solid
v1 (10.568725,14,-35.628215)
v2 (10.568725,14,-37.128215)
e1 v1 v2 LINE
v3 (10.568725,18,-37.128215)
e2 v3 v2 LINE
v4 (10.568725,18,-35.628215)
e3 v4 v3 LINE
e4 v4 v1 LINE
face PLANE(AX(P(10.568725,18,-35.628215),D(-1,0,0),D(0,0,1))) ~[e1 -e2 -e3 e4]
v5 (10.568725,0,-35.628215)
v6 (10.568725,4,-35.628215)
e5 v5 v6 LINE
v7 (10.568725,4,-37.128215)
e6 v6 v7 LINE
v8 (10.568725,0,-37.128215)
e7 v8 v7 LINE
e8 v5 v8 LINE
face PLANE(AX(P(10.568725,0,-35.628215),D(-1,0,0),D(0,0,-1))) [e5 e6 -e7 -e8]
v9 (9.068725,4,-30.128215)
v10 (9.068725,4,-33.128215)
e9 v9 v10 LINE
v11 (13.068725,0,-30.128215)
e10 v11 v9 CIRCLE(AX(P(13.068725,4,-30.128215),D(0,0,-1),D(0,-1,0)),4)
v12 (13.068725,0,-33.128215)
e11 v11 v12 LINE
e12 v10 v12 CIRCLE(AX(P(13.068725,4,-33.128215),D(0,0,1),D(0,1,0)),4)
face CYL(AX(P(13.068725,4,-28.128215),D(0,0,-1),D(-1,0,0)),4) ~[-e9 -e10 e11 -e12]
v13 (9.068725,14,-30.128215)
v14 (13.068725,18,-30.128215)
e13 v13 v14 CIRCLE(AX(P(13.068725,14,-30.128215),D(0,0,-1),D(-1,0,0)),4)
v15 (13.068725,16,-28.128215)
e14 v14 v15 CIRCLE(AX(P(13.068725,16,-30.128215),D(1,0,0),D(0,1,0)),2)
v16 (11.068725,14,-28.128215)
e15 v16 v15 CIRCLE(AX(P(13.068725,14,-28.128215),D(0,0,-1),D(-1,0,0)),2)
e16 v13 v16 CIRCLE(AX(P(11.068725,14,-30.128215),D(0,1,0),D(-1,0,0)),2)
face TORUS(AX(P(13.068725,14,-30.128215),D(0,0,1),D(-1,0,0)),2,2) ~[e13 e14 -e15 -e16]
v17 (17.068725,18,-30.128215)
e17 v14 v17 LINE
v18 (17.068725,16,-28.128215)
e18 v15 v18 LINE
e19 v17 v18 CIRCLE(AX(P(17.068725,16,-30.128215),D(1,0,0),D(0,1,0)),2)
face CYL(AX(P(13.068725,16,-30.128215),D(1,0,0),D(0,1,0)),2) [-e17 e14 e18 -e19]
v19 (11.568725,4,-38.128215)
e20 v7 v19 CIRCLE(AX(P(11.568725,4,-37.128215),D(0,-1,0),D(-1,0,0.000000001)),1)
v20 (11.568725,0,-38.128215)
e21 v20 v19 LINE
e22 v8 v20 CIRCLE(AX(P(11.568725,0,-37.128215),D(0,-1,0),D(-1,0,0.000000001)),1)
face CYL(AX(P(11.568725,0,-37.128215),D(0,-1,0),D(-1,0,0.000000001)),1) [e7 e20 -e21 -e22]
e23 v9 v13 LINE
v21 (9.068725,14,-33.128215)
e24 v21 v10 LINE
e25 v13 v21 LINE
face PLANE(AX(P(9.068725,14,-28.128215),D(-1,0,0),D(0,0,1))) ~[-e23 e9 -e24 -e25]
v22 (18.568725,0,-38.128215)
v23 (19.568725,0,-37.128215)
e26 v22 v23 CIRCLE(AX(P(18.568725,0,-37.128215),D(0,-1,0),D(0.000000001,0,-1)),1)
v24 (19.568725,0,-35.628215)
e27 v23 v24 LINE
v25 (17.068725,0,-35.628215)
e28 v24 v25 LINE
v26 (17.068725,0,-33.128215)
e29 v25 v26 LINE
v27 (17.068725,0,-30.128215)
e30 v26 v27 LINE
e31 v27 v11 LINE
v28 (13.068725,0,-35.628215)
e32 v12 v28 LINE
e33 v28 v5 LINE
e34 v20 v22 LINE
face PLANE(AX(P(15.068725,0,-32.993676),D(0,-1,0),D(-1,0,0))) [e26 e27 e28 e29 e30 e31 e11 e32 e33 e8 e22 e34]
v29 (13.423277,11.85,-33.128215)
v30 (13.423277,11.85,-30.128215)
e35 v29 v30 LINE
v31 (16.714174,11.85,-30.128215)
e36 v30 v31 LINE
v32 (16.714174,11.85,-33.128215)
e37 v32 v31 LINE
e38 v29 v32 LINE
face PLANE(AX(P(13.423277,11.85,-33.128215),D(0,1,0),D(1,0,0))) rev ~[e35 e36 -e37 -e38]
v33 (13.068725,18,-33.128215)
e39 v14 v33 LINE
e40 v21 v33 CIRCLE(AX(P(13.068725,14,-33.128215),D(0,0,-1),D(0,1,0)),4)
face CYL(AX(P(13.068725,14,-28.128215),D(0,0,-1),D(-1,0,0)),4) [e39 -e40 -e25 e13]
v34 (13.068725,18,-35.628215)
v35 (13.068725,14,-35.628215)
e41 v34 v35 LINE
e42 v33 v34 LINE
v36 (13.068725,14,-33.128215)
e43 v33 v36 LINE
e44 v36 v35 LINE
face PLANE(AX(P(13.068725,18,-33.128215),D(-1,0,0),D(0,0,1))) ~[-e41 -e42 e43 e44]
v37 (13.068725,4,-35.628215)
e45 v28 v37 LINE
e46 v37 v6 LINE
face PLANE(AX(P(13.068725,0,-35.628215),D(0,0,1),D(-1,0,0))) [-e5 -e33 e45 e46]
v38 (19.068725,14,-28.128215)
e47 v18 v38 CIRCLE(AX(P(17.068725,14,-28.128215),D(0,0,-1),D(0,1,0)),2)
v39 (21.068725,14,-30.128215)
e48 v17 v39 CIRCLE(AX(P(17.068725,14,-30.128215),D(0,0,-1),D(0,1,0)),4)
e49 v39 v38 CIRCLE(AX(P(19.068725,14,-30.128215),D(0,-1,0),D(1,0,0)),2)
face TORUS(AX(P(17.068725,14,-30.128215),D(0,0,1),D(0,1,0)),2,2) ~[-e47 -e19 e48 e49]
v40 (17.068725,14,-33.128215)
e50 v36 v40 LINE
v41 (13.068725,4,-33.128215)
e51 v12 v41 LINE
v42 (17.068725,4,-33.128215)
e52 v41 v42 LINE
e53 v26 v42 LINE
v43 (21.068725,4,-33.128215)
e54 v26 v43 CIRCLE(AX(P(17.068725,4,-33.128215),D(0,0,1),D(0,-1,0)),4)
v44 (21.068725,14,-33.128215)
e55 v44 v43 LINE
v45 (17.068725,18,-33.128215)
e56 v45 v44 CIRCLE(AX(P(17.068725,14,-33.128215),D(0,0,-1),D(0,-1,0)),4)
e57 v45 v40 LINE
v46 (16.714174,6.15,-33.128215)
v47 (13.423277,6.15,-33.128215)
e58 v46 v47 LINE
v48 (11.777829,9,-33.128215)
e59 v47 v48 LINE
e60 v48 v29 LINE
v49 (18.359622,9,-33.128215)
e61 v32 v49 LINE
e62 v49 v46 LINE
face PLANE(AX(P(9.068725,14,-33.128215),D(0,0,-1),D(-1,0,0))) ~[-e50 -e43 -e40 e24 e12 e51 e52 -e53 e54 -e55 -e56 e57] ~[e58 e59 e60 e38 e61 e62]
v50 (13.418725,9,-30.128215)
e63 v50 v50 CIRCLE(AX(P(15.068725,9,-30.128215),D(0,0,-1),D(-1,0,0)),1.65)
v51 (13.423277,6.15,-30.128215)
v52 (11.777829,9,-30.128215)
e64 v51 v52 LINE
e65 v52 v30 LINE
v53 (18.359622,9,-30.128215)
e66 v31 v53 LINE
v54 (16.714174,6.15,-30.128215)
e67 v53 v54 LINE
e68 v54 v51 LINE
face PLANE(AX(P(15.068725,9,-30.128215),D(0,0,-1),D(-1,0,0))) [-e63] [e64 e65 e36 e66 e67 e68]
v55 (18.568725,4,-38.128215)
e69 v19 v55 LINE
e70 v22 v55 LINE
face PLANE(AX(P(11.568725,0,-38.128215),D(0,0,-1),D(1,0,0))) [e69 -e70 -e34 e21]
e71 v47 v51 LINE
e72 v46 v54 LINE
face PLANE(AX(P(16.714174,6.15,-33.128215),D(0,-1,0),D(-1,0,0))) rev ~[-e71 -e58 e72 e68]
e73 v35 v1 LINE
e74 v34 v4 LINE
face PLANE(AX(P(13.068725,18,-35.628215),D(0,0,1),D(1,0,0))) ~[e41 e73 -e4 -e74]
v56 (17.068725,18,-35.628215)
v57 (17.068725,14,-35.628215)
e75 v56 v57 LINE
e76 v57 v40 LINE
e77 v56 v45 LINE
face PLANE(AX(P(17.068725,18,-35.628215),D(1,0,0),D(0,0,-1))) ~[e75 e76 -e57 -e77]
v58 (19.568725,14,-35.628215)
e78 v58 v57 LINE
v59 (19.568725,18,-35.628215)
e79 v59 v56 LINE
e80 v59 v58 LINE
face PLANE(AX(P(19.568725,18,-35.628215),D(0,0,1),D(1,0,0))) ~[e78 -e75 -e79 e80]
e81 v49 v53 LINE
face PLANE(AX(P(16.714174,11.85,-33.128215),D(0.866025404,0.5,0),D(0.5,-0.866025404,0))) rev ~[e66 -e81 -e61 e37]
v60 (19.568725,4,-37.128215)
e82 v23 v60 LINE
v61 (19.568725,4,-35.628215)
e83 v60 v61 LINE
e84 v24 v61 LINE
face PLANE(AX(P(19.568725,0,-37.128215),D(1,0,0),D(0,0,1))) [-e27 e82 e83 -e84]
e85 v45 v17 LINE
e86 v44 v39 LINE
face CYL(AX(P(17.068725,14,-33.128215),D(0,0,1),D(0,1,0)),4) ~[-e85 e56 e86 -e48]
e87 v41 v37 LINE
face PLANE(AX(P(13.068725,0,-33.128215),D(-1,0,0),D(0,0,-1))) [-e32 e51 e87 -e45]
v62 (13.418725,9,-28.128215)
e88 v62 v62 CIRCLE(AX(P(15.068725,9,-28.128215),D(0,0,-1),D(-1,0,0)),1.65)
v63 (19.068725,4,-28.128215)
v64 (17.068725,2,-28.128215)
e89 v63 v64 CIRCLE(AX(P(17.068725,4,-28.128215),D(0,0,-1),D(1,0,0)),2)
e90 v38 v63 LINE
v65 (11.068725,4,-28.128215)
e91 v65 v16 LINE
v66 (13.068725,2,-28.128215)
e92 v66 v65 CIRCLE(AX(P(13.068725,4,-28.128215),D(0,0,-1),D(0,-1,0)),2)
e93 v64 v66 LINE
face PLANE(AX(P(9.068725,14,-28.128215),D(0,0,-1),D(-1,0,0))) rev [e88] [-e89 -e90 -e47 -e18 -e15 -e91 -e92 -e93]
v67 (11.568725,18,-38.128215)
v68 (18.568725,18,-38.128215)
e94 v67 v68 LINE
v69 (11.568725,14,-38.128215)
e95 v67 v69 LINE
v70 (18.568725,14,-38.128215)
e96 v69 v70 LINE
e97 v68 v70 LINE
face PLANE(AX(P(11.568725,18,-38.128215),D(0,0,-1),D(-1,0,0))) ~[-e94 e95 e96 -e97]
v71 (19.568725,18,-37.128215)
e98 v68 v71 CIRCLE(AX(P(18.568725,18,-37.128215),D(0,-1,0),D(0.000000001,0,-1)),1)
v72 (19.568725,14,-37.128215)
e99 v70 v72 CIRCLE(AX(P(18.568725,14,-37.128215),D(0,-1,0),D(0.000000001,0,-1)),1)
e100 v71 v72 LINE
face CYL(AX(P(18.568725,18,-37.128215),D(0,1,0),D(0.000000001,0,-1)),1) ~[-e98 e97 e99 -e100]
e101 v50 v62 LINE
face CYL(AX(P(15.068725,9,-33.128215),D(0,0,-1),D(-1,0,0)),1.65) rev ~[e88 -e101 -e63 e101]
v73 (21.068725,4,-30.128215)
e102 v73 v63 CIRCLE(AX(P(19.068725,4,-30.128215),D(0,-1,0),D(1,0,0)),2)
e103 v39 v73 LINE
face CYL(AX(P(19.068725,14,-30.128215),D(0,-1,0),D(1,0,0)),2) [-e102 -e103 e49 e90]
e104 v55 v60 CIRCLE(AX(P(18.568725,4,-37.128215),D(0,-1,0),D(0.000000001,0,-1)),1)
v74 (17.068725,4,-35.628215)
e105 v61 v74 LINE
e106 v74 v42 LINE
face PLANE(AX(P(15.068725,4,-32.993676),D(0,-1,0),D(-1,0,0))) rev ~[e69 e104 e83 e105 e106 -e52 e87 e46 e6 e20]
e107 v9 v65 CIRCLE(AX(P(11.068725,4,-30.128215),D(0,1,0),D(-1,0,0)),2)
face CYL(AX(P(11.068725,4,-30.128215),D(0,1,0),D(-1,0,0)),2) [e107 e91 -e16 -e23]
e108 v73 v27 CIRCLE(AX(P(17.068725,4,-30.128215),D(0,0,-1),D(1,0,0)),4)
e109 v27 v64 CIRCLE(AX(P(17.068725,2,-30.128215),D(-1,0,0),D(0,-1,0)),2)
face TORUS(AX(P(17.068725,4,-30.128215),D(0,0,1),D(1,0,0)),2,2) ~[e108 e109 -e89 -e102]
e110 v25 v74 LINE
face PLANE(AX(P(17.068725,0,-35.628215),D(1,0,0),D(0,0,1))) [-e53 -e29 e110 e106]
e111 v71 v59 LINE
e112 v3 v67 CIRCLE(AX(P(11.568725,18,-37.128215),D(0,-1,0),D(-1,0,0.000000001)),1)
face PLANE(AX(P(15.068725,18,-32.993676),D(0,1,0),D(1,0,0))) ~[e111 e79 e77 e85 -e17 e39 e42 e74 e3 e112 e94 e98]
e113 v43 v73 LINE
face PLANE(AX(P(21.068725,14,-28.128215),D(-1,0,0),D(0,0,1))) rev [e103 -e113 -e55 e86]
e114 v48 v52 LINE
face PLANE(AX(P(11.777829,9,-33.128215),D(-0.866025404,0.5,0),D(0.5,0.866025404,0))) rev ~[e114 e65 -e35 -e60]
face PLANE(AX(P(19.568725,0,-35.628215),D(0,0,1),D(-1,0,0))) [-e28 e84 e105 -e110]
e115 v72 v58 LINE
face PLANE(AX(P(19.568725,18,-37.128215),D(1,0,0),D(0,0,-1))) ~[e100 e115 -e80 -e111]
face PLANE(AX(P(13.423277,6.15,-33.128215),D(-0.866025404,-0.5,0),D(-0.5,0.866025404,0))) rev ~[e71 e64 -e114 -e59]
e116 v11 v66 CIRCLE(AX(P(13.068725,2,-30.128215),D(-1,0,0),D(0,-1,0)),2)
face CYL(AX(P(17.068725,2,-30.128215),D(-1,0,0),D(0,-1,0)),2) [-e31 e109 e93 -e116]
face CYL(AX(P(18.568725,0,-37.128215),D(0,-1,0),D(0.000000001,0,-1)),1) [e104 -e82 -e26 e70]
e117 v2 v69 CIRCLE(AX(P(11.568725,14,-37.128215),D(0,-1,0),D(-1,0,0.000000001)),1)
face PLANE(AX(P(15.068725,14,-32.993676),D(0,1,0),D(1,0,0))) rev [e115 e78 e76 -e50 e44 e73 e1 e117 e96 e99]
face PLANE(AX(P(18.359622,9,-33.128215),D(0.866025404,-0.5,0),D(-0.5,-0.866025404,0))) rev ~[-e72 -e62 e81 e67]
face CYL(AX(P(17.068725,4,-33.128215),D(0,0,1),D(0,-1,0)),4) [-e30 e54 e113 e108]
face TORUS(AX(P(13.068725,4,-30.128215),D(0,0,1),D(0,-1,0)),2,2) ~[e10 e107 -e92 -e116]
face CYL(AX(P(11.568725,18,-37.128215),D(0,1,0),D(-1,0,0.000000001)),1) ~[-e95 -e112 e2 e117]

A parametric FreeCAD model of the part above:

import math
import FreeCAD as App
import Part
import Sketcher
Q = App.Units.Quantity


def edges_at(feature, points):
    """Names of the edges that pass closest to the given points."""
    edges = feature.Shape.Edges
    near = lambda p: min(range(len(edges)), key=lambda i: edges[i].distToShape(Part.Vertex(*p))[0])
    return sorted({f"Edge{near(p) + 1}" for p in points})

doc = App.newDocument("Part")
body = doc.addObject("PartDesign::Body", "Body")

# Sketch on XZ plane
sketch1 = body.newObject("Sketcher::SketchObject", "Sketch")
sketch1.AttachmentSupport = (doc.getObject("XZ_Plane"), [""])
sketch1.MapMode = "FlatFace"
sketch1.addGeometry([
    Part.LineSegment(App.Vector(18.568725, -38.128215, 0), App.Vector(11.568725, -38.128215, 0)),  # 0
    Part.ArcOfCircle(Part.Circle(App.Vector(11.568725, -37.128215, 0), App.Vector(0, 0, 1), 1), math.radians(180), math.radians(270)),  # 1
    Part.LineSegment(App.Vector(10.568725, -37.128215, 0), App.Vector(10.568725, -35.628215, 0)),  # 2
    Part.LineSegment(App.Vector(10.568725, -35.628215, 0), App.Vector(13.068725, -35.628215, 0)),  # 3
    Part.LineSegment(App.Vector(13.068725, -35.628215, 0), App.Vector(13.068725, -33.128215, 0)),  # 4
    Part.LineSegment(App.Vector(13.068725, -33.128215, 0), App.Vector(9.068725, -33.128215, 0)),  # 5
    Part.LineSegment(App.Vector(9.068725, -33.128215, 0), App.Vector(9.068725, -28.128215, 0)),  # 6
    Part.LineSegment(App.Vector(9.068725, -28.128215, 0), App.Vector(21.068725, -28.128215, 0)),  # 7
    Part.LineSegment(App.Vector(21.068725, -28.128215, 0), App.Vector(21.068725, -33.128215, 0)),  # 8
    Part.LineSegment(App.Vector(21.068725, -33.128215, 0), App.Vector(17.068725, -33.128215, 0)),  # 9
    Part.LineSegment(App.Vector(17.068725, -33.128215, 0), App.Vector(17.068725, -35.628215, 0)),  # 10
    Part.LineSegment(App.Vector(17.068725, -35.628215, 0), App.Vector(19.568725, -35.628215, 0)),  # 11
    Part.LineSegment(App.Vector(19.568725, -35.628215, 0), App.Vector(19.568725, -37.128215, 0)),  # 12
    Part.ArcOfCircle(Part.Circle(App.Vector(18.568725, -37.128215, 0), App.Vector(0, 0, 1), 1), math.radians(-90), math.radians(0)),  # 13
], False)
sketch1.addConstraint([
    Sketcher.Constraint("Tangent", 0, 2, 1, 2),
    Sketcher.Constraint("Tangent", 1, 1, 2, 1),
    Sketcher.Constraint("Coincident", 2, 2, 3, 1),
    Sketcher.Constraint("Coincident", 3, 2, 4, 1),
    Sketcher.Constraint("Coincident", 4, 2, 5, 1),
    Sketcher.Constraint("Coincident", 5, 2, 6, 1),
    Sketcher.Constraint("Coincident", 6, 2, 7, 1),
    Sketcher.Constraint("Coincident", 7, 2, 8, 1),
    Sketcher.Constraint("Coincident", 8, 2, 9, 1),
    Sketcher.Constraint("Coincident", 9, 2, 10, 1),
    Sketcher.Constraint("Coincident", 10, 2, 11, 1),
    Sketcher.Constraint("Coincident", 11, 2, 12, 1),
    Sketcher.Constraint("Tangent", 12, 2, 13, 2),
    Sketcher.Constraint("Tangent", 13, 1, 0, 1),
    Sketcher.Constraint("Horizontal", 0),
    Sketcher.Constraint("Vertical", 2),
    Sketcher.Constraint("Horizontal", 3),
    Sketcher.Constraint("Vertical", 4),
    Sketcher.Constraint("Horizontal", 5),
    Sketcher.Constraint("Vertical", 6),
    Sketcher.Constraint("Horizontal", 7),
    Sketcher.Constraint("Vertical", 8),
    Sketcher.Constraint("Horizontal", 9),
    Sketcher.Constraint("Vertical", 10),
    Sketcher.Constraint("Horizontal", 11),
    Sketcher.Constraint("Vertical", 12),
    Sketcher.Constraint("Equal", 1, 13),
    Sketcher.Constraint("Horizontal", 5, 2, 8, 2),
    Sketcher.Constraint("Horizontal", 3, 2, 10, 2),
    Sketcher.Constraint("Equal", 5, 9),
    Sketcher.Constraint("Equal", 3, 11),
    Sketcher.Constraint("Equal", 11, 4),
    Sketcher.Constraint("Radius", 1, 1.0),
    Sketcher.Constraint("DistanceX", 0, 2, 0, 1, 7.0),
    Sketcher.Constraint("DistanceX", 5, 2, 5, 1, 4.0),
    Sketcher.Constraint("DistanceX", 7, 1, 7, 2, 12.0),
    Sketcher.Constraint("DistanceY", 6, 1, 6, 2, 5.0),
    Sketcher.Constraint("DistanceY", 2, 1, 2, 2, 1.5),
    Sketcher.Constraint("DistanceX", -1, 1, 1, 3, 11.568725),
    Sketcher.Constraint("DistanceY", 1, 3, -1, 1, 37.128215),
])
pad1 = body.newObject("PartDesign::Pad", "Pad")
pad1.Profile = sketch1
pad1.Length = 4
pad1.Reversed = True

# Sketch on XZ plane
sketch2 = body.newObject("Sketcher::SketchObject", "Sketch001")
sketch2.AttachmentSupport = (doc.getObject("XZ_Plane"), [""])
sketch2.MapMode = "FlatFace"
sketch2.AttachmentOffset = App.Placement(App.Vector(0, 0, -4), App.Rotation())
sketch2.addGeometry([
    Part.LineSegment(App.Vector(9.068725, -33.128215, 0), App.Vector(9.068725, -28.128215, 0)),
    Part.LineSegment(App.Vector(9.068725, -28.128215, 0), App.Vector(21.068725, -28.128215, 0)),
    Part.LineSegment(App.Vector(21.068725, -28.128215, 0), App.Vector(21.068725, -33.128215, 0)),
    Part.LineSegment(App.Vector(21.068725, -33.128215, 0), App.Vector(9.068725, -33.128215, 0)),
], False)
sketch2.addConstraint([
    Sketcher.Constraint("Coincident", 0, 2, 1, 1),
    Sketcher.Constraint("Coincident", 1, 2, 2, 1),
    Sketcher.Constraint("Coincident", 2, 2, 3, 1),
    Sketcher.Constraint("Coincident", 3, 2, 0, 1),
    Sketcher.Constraint("Vertical", 0),
    Sketcher.Constraint("Horizontal", 1),
    Sketcher.Constraint("Vertical", 2),
    Sketcher.Constraint("Horizontal", 3),
    Sketcher.Constraint("DistanceX", 1, 1, 1, 2, 12.0),
    Sketcher.Constraint("DistanceY", 0, 1, 0, 2, 5.0),
    Sketcher.Constraint("DistanceX", -1, 1, 0, 2, 9.068725),
    Sketcher.Constraint("DistanceY", 0, 2, -1, 1, 28.128215),
])
pad2 = body.newObject("PartDesign::Pad", "Pad001")
pad2.Profile = sketch2
pad2.Length = 5
pad2.Reversed = True
body2 = doc.addObject("PartDesign::Body", "Body001")
doc.recompute()

body2.BaseFeature = body
doc.recompute()

mirroring = doc.addObject("Part::Mirroring", "Mirroring")
mirroring.Source = body
mirroring.Base = App.Vector(0, 9, 0)
mirroring.Normal = App.Vector(0, 1, 0)
body3 = doc.addObject("PartDesign::Body", "Body002")
body3.BaseFeature = mirroring
boolean = body2.newObject("PartDesign::Boolean", "Boolean")
boolean.Type = "Fuse"
boolean.addObjects([body3])
doc.recompute()

# Sketch on XY plane
sketch3 = body2.newObject("Sketcher::SketchObject", "Sketch002")
sketch3.AttachmentSupport = (doc.getObject("XY_Plane001"), [""])
sketch3.MapMode = "FlatFace"
sketch3.AttachmentOffset = App.Placement(App.Vector(0, 0, -33.128215), App.Rotation())
sketch3.addGeometry(Part.Circle(App.Vector(15.068725, 9, 0), App.Vector(0, 0, 1), 1.65), False)
sketch3.addConstraint([
    Sketcher.Constraint("Diameter", 0, 3.3),
    Sketcher.Constraint("DistanceY", -1, 1, 0, 3, 9.0),
    Sketcher.Constraint("DistanceX", -1, 1, 0, 3, 15.068725),
])
pocket1 = body2.newObject("PartDesign::Pocket", "Pocket")
pocket1.Profile = sketch3
pocket1.Type = "UpToFirst"
pocket1.Reversed = True

# Sketch on XY plane
sketch4 = body2.newObject("Sketcher::SketchObject", "Sketch003")
sketch4.AttachmentSupport = (doc.getObject("XY_Plane001"), [""])
sketch4.MapMode = "FlatFace"
sketch4.AttachmentOffset = App.Placement(App.Vector(0, 0, -33.128215), App.Rotation())
sketch4.addGeometry([
    Part.LineSegment(App.Vector(13.423277, 11.85, 0), App.Vector(16.714174, 11.85, 0)),  # 0
    Part.LineSegment(App.Vector(16.714174, 11.85, 0), App.Vector(18.359622, 9, 0)),  # 1
    Part.LineSegment(App.Vector(18.359622, 9, 0), App.Vector(16.714174, 6.15, 0)),  # 2
    Part.LineSegment(App.Vector(16.714174, 6.15, 0), App.Vector(13.423277, 6.15, 0)),  # 3
    Part.LineSegment(App.Vector(13.423277, 6.15, 0), App.Vector(11.777829, 9, 0)),  # 4
    Part.LineSegment(App.Vector(11.777829, 9, 0), App.Vector(13.423277, 11.85, 0)),  # 5
], False)
sketch4.addConstraint([
    Sketcher.Constraint("Coincident", 0, 2, 1, 1),
    Sketcher.Constraint("Coincident", 1, 2, 2, 1),
    Sketcher.Constraint("Coincident", 2, 2, 3, 1),
    Sketcher.Constraint("Coincident", 3, 2, 4, 1),
    Sketcher.Constraint("Coincident", 4, 2, 5, 1),
    Sketcher.Constraint("Coincident", 5, 2, 0, 1),
    Sketcher.Constraint("Horizontal", 0),
    Sketcher.Constraint("Horizontal", 3),
    Sketcher.Constraint("Parallel", 1, 4),
    Sketcher.Constraint("Parallel", 2, 5),
    Sketcher.Constraint("Horizontal", 1, 2, 4, 2),
    Sketcher.Constraint("Vertical", 0, 2, 2, 2),
    Sketcher.Constraint("Vertical", 3, 2, 5, 2),
    Sketcher.Constraint("Angle", 1, Q("-60 deg")),
    Sketcher.Constraint("DistanceY", -1, 1, 1, 2, 9.0),
    Sketcher.Constraint("DistanceY", 2, 2, 0, 2, 5.7),
    Sketcher.Constraint("DistanceX", 0, 1, 0, 2, 3.290897),
    Sketcher.Constraint("DistanceX", -1, 1, 1, 2, 18.359622),
])
pocket2 = body2.newObject("PartDesign::Pocket", "Pocket001")
pocket2.Profile = sketch4
pocket2.Length = 3
pocket2.Reversed = True
doc.recompute()

fillet = body2.newObject("PartDesign::Fillet", "Fillet")
fillet.Base = (pocket2, edges_at(pocket2, [
    (9.069, 0, -30.628),
    (9.069, 18, -30.628),
    (21.069, 18, -30.628),
    (21.069, 0, -30.628),
]))
fillet.Radius = 4
doc.recompute()

fillet2 = body2.newObject("PartDesign::Fillet", "Fillet001")
fillet2.Base = (fillet, edges_at(fillet, [
    (9.069, 9, -28.128),
    (15.069, 0, -28.128),
    (21.069, 9, -28.128),
    (15.069, 18, -28.128),
    (19.897, 16.828, -28.128),
    (19.897, 1.172, -28.128),
    (10.24, 16.828, -28.128),
    (10.24, 1.172, -28.128),
]))
fillet2.Radius = 2
mirroring.Visibility = False

doc.recompute()
